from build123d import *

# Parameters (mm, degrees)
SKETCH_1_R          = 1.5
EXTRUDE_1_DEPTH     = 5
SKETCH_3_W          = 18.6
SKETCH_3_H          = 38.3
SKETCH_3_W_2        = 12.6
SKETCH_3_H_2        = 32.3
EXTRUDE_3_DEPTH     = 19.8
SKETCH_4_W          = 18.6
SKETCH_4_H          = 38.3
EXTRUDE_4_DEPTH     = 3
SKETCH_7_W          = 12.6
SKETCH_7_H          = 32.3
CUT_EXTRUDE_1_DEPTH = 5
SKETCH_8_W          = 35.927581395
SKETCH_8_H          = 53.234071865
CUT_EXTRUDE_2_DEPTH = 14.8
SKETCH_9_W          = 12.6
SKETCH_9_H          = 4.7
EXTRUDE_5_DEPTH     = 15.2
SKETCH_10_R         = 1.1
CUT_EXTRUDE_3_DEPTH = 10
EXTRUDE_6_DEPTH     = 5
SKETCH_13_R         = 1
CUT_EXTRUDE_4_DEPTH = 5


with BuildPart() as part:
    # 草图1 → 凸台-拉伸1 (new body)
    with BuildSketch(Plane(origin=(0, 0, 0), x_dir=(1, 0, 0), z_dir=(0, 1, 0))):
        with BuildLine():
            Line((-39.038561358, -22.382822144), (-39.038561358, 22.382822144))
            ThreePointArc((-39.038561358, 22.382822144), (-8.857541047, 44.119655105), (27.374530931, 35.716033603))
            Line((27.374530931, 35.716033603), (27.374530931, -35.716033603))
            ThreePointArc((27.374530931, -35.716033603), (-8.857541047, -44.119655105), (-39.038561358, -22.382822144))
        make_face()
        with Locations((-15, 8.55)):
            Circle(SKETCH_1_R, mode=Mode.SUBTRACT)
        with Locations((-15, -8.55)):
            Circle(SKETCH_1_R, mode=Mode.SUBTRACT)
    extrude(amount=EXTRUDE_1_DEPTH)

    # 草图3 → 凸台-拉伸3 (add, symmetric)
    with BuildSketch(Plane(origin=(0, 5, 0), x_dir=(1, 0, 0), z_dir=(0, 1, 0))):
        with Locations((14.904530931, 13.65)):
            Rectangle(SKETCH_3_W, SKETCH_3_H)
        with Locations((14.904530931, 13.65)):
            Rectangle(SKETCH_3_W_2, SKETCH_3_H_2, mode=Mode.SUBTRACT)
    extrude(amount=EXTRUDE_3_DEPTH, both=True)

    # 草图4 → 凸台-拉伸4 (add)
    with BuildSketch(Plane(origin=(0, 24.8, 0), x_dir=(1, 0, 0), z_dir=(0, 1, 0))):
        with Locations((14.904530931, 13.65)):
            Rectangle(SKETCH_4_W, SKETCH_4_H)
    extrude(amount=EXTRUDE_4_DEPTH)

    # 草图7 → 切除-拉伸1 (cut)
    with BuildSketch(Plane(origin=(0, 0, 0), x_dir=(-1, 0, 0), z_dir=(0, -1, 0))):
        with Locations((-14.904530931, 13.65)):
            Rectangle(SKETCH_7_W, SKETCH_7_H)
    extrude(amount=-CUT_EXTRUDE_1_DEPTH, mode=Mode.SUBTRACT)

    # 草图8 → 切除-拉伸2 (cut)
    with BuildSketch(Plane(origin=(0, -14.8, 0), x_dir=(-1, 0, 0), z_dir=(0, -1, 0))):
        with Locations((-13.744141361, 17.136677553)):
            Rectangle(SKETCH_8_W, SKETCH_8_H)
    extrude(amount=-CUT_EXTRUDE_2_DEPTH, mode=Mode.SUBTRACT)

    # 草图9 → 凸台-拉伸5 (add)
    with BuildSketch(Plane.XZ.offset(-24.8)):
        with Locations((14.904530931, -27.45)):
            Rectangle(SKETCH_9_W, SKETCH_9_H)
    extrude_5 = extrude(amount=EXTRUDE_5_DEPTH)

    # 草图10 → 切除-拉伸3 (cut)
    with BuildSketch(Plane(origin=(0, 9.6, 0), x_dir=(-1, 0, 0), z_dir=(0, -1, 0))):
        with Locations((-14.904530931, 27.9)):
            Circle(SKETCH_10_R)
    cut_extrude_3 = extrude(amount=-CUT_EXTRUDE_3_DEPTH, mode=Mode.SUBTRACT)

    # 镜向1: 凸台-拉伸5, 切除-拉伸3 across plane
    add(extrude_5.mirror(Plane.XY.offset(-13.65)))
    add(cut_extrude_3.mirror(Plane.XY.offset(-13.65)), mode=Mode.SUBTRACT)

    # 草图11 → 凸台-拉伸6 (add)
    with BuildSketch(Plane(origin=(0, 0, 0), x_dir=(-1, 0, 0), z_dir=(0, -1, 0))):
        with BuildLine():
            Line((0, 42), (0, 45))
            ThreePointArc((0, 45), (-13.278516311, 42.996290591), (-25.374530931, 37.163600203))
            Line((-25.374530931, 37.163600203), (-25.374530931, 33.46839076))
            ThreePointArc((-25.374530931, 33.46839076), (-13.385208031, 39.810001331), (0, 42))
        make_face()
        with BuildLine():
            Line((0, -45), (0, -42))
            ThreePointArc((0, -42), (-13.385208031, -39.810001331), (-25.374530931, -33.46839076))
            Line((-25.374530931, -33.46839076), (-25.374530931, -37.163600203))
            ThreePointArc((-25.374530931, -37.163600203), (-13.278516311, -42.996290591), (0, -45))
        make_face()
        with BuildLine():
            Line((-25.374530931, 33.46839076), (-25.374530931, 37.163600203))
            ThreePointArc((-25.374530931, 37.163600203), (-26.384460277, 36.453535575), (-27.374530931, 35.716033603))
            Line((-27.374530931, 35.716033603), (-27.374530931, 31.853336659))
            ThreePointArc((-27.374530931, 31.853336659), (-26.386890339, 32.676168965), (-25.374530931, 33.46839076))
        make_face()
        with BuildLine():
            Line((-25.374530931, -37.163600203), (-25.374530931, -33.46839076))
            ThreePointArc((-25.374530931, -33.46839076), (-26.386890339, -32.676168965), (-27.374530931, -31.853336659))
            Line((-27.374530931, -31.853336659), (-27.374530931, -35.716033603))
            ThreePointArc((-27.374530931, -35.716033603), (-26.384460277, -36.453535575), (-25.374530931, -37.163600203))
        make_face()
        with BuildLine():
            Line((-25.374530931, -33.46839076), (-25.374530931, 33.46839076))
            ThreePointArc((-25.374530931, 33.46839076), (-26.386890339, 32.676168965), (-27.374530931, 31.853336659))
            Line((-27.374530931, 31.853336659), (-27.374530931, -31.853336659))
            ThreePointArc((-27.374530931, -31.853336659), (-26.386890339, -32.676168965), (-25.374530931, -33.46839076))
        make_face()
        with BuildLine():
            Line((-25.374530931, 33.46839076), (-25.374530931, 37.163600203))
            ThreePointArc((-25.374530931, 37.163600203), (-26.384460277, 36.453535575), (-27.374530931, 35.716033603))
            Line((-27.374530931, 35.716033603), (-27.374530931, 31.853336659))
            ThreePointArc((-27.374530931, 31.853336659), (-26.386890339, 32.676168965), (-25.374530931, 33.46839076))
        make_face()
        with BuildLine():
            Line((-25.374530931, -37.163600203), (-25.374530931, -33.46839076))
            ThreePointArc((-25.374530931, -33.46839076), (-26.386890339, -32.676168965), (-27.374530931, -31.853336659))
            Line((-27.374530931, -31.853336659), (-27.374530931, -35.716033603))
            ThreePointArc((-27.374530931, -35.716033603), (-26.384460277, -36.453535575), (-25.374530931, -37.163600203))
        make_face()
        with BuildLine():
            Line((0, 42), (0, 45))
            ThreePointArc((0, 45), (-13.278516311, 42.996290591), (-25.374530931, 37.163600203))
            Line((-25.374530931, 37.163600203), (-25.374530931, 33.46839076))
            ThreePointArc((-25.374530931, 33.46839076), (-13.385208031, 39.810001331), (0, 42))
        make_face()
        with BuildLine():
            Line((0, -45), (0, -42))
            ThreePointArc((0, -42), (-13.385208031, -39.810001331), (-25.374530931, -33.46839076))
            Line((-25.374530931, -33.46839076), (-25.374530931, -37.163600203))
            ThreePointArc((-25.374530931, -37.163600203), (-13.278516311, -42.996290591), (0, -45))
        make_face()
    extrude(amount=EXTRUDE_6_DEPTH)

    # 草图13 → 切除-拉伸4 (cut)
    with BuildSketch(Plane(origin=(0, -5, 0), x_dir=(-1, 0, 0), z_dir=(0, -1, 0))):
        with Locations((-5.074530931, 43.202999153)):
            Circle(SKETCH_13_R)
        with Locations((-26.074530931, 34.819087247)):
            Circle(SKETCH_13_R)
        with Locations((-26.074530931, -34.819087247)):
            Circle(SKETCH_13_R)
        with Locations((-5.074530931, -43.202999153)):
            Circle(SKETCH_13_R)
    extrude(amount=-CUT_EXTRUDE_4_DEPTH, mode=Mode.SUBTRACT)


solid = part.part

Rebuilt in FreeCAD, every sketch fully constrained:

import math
import FreeCAD as App
import Part
import Sketcher
from FreeCAD import Vector
Q = App.Units.Quantity


def add_polygon(sketch, points):
    """Adds a closed chain of lines whose ends are joined by coincident constraints."""
    first, n = sketch.GeometryCount, len(points)
    for a, b in zip(points, points[1:] + points[:1]):
        sketch.addGeometry(Part.LineSegment(App.Vector(*a, 0), App.Vector(*b, 0)), False)
    for i in range(n):
        sketch.addConstraint(Sketcher.Constraint("Coincident", first + i, 2, first + (i + 1) % n, 1))

doc = App.newDocument("Part")
params = doc.addObject("Spreadsheet::Sheet", "Params")
for row, (alias, value) in enumerate([
    ("sketch1_diameter", "3 mm"),
    ("sketch1_radius", "45 mm"),
    ("pad1_length", "5 mm"),
    ("sketch2_width", "18.6 mm"),
    ("sketch2_width2", "12.6 mm"),
    ("sketch2_height", "38.3 mm"),
    ("sketch2_height2", "32.3 mm"),
    ("pad2_length", "39.6 mm"),
    ("sketch3_width", "18.6 mm"),
    ("sketch3_height", "38.3 mm"),
    ("pad3_length", "3 mm"),
    ("sketch4_width", "12.6 mm"),
    ("sketch4_height", "32.3 mm"),
    ("pocket1_length", "5 mm"),
    ("pocket2_length", "14.8 mm"),
    ("sketch6_width", "12.6 mm"),
    ("sketch6_height", "4.7 mm"),
    ("pad4_length", "15.2 mm"),
    ("sketch7_diameter", "2.2 mm"),
    ("pocket3_length", "10 mm"),
    ("sketch8_radius", "42 mm"),
    ("sketch8_radius2", "45 mm"),
    ("pad5_length", "5 mm"),
    ("sketch9_diameter", "2 mm"),
    ("pocket4_length", "5 mm"),
], start=1):
    params.set(f"A{row}", alias)
    params.set(f"B{row}", "=" + value)
    params.setAlias(f"B{row}", alias)

body = doc.addObject("PartDesign::Body", "Body")

# Sketch on XZ plane
sketch1 = body.newObject("Sketcher::SketchObject", "Sketch")
sketch1.AttachmentSupport = (doc.getObject("XZ_Plane"), [""])
sketch1.MapMode = "FlatFace"
sketch1.addGeometry([
    Part.LineSegment(Vector(-39, -22.4, 0), Vector(-39, 22.4, 0)),  # 0
    Part.ArcOfCircle(Part.Circle(Vector(0, 0, 0), Vector(0, 0, 1), 45), math.radians(53), math.radians(150)),  # 1
    Part.LineSegment(Vector(27.4, 35.7, 0), Vector(27.4, -35.7, 0)),  # 2
    Part.ArcOfCircle(Part.Circle(Vector(0, 0, 0), Vector(0, 0, 1), 45), math.radians(-150), math.radians(-53)),  # 3
    Part.Circle(Vector(-15, 8.6, 0), Vector(0, 0, 1), 1.5),  # 4
    Part.Circle(Vector(-15, -8.6, 0), Vector(0, 0, 1), 1.5),  # 5
], False)
sketch1.addConstraint([
    Sketcher.Constraint("Coincident", 0, 2, 1, 2),
    Sketcher.Constraint("Coincident", 1, 1, 2, 1),
    Sketcher.Constraint("Coincident", 2, 2, 3, 2),
    Sketcher.Constraint("Coincident", 3, 1, 0, 1),
    Sketcher.Constraint("Vertical", 0),
    Sketcher.Constraint("Vertical", 2),
    Sketcher.Constraint("Coincident", 1, 3, -1, 1),
    Sketcher.Constraint("Coincident", 3, 3, -1, 1),
    Sketcher.Constraint("Equal", 1, 3),
    Sketcher.Constraint("Equal", 4, 5),
    Sketcher.Constraint("Symmetric", 4, 3, 5, 3, -1),
    Sketcher.Constraint("Diameter", 4, Q("3 mm")),
    Sketcher.Constraint("Radius", 1, Q("45 mm")),
    Sketcher.Constraint("DistanceX", 4, 3, -1, 1, Q("15 mm")),
    Sketcher.Constraint("DistanceY", 5, 3, 4, 3, Q("17.1 mm")),
    Sketcher.Constraint("DistanceY", 0, 1, 0, 2, Q("44.765644 mm")),
    Sketcher.Constraint("DistanceY", 2, 2, 2, 1, Q("71.432067 mm")),
])
sketch1.setExpression("Constraints[11]", "Params.sketch1_diameter")
sketch1.setExpression("Constraints[12]", "Params.sketch1_radius")
pad1 = body.newObject("PartDesign::Pad", "Pad")
pad1.Profile = sketch1
pad1.setExpression("Length", "Params.pad1_length")
pad1.Reversed = True

# Sketch on XZ plane
sketch2 = body.newObject("Sketcher::SketchObject", "Sketch001")
sketch2.AttachmentSupport = (doc.getObject("XZ_Plane"), [""])
sketch2.MapMode = "FlatFace"
sketch2.AttachmentOffset = App.Placement(Vector(0, 0, -5), App.Rotation())
add_polygon(sketch2, [(6, -33), (6, 6), (24, 6), (24, -33)])  # lines 0-3
add_polygon(sketch2, [(21, 2), (9, 2), (9, -30), (21, -30)])  # lines 4-7
sketch2.addConstraint([
    Sketcher.Constraint("Vertical", 0),
    Sketcher.Constraint("Horizontal", 1),
    Sketcher.Constraint("Vertical", 2),
    Sketcher.Constraint("Horizontal", 3),
    Sketcher.Constraint("Horizontal", 4),
    Sketcher.Constraint("Vertical", 5),
    Sketcher.Constraint("Horizontal", 6),
    Sketcher.Constraint("Vertical", 7),
    Sketcher.Constraint("DistanceX", 1, 1, 1, 2, Q("18.6 mm")),
    Sketcher.Constraint("DistanceX", 4, 2, 4, 1, Q("12.6 mm")),
    Sketcher.Constraint("DistanceY", 0, 1, 0, 2, Q("38.3 mm")),
    Sketcher.Constraint("DistanceY", 5, 2, 5, 1, Q("32.3 mm")),
    Sketcher.Constraint("DistanceX", 0, 2, 4, 2, Q("3 mm")),
    Sketcher.Constraint("DistanceY", 4, 2, 0, 2, Q("3 mm")),
    Sketcher.Constraint("DistanceY", -1, 1, 0, 2, Q("5.5 mm")),
    Sketcher.Constraint("DistanceX", -1, 1, 0, 2, Q("5.604531 mm")),
])
sketch2.setExpression("Constraints[16]", "Params.sketch2_width")
sketch2.setExpression("Constraints[17]", "Params.sketch2_width2")
sketch2.setExpression("Constraints[18]", "Params.sketch2_height")
sketch2.setExpression("Constraints[19]", "Params.sketch2_height2")
pad2 = body.newObject("PartDesign::Pad", "Pad001")
pad2.Profile = sketch2
pad2.setExpression("Length", "Params.pad2_length")
pad2.Midplane = True

# Sketch on XZ plane
sketch3 = body.newObject("Sketcher::SketchObject", "Sketch002")
sketch3.AttachmentSupport = (doc.getObject("XZ_Plane"), [""])
sketch3.MapMode = "FlatFace"
sketch3.AttachmentOffset = App.Placement(Vector(0, 0, -24.8), App.Rotation())
add_polygon(sketch3, [(6, -33), (6, 6), (24, 6), (24, -33)])  # lines 0-3
sketch3.addConstraint([
    Sketcher.Constraint("Vertical", 0),
    Sketcher.Constraint("Horizontal", 1),
    Sketcher.Constraint("Vertical", 2),
    Sketcher.Constraint("Horizontal", 3),
    Sketcher.Constraint("DistanceX", 1, 1, 1, 2, Q("18.6 mm")),
    Sketcher.Constraint("DistanceY", 0, 1, 0, 2, Q("38.3 mm")),
    Sketcher.Constraint("DistanceY", -1, 1, 0, 2, Q("5.5 mm")),
    Sketcher.Constraint("DistanceX", -1, 1, 0, 2, Q("5.604531 mm")),
])
sketch3.setExpression("Constraints[8]", "Params.sketch3_width")
sketch3.setExpression("Constraints[9]", "Params.sketch3_height")
pad3 = body.newObject("PartDesign::Pad", "Pad002")
pad3.Profile = sketch3
pad3.setExpression("Length", "Params.pad3_length")
pad3.Reversed = True

# Sketch on XZ plane
sketch4 = body.newObject("Sketcher::SketchObject", "Sketch003")
sketch4.AttachmentSupport = (doc.getObject("XZ_Plane"), [""])
sketch4.MapMode = "FlatFace"
add_polygon(sketch4, [(21, -30), (21, 2), (9, 2), (9, -30)])  # lines 0-3
sketch4.addConstraint([
    Sketcher.Constraint("Vertical", 0),
    Sketcher.Constraint("Horizontal", 1),
    Sketcher.Constraint("Vertical", 2),
    Sketcher.Constraint("Horizontal", 3),
    Sketcher.Constraint("DistanceX", 1, 2, 1, 1, Q("12.6 mm")),
    Sketcher.Constraint("DistanceY", 0, 1, 0, 2, Q("32.3 mm")),
    Sketcher.Constraint("DistanceY", -1, 1, 0, 2, Q("2.5 mm")),
    Sketcher.Constraint("DistanceX", -1, 1, 0, 2, Q("21.204531 mm")),
])
sketch4.setExpression("Constraints[8]", "Params.sketch4_width")
sketch4.setExpression("Constraints[9]", "Params.sketch4_height")
pocket1 = body.newObject("PartDesign::Pocket", "Pocket")
pocket1.Profile = sketch4
pocket1.setExpression("Length", "Params.pocket1_length")

# Sketch on XZ plane
sketch5 = body.newObject("Sketcher::SketchObject", "Sketch004")
sketch5.AttachmentSupport = (doc.getObject("XZ_Plane"), [""])
sketch5.MapMode = "FlatFace"
sketch5.AttachmentOffset = App.Placement(Vector(0, 0, 14.8), App.Rotation())
add_polygon(sketch5, [(32, -44), (32, 9), (-4, 9), (-4, -44)])  # lines 0-3
sketch5.addConstraint([
    Sketcher.Constraint("Vertical", 0),
    Sketcher.Constraint("Horizontal", 1),
    Sketcher.Constraint("Vertical", 2),
    Sketcher.Constraint("Horizontal", 3),
    Sketcher.Constraint("DistanceX", 1, 2, 1, 1, Q("35.927581 mm")),
    Sketcher.Constraint("DistanceY", 0, 1, 0, 2, Q("53.234072 mm")),
    Sketcher.Constraint("DistanceY", -1, 1, 0, 2, Q("9.480358 mm")),
    Sketcher.Constraint("DistanceX", 1, 2, -1, 1, Q("4.219649 mm")),
])
pocket2 = body.newObject("PartDesign::Pocket", "Pocket001")
pocket2.Profile = sketch5
pocket2.setExpression("Length", "Params.pocket2_length")

# Sketch on XZ plane
sketch6 = body.newObject("Sketcher::SketchObject", "Sketch005")
sketch6.AttachmentSupport = (doc.getObject("XZ_Plane"), [""])
sketch6.MapMode = "FlatFace"
sketch6.AttachmentOffset = App.Placement(Vector(0, 0, -24.8), App.Rotation())
add_polygon(sketch6, [(8.6, -25.1), (8.6, -29.8), (21.2, -29.8), (21.2, -25.1)])  # lines 0-3
sketch6.addConstraint([
    Sketcher.Constraint("Vertical", 0),
    Sketcher.Constraint("Horizontal", 1),
    Sketcher.Constraint("Vertical", 2),
    Sketcher.Constraint("Horizontal", 3),
    Sketcher.Constraint("DistanceX", 1, 1, 1, 2, Q("12.6 mm")),
    Sketcher.Constraint("DistanceY", 0, 2, 0, 1, Q("4.7 mm")),
    Sketcher.Constraint("DistanceY", 0, 2, -1, 1, Q("29.8 mm")),
    Sketcher.Constraint("DistanceX", -1, 1, 0, 2, Q("8.604531 mm")),
])
sketch6.setExpression("Constraints[8]", "Params.sketch6_width")
sketch6.setExpression("Constraints[9]", "Params.sketch6_height")
pad4 = body.newObject("PartDesign::Pad", "Pad003")
pad4.Profile = sketch6
pad4.setExpression("Length", "Params.pad4_length")

# Sketch on XZ plane
sketch7 = body.newObject("Sketcher::SketchObject", "Sketch006")
sketch7.AttachmentSupport = (doc.getObject("XZ_Plane"), [""])
sketch7.MapMode = "FlatFace"
sketch7.AttachmentOffset = App.Placement(Vector(0, 0, -9.6), App.Rotation())
sketch7.addGeometry(Part.Circle(Vector(14.9, -27.9, 0), Vector(0, 0, 1), 1.1), False)
sketch7.addConstraint([
    Sketcher.Constraint("Diameter", 0, Q("2.2 mm")),
    Sketcher.Constraint("DistanceY", 0, 3, -1, 1, Q("27.9 mm")),
    Sketcher.Constraint("DistanceX", -1, 1, 0, 3, Q("14.904531 mm")),
])
sketch7.setExpression("Constraints[0]", "Params.sketch7_diameter")
pocket3 = body.newObject("PartDesign::Pocket", "Pocket002")
pocket3.Profile = sketch7
pocket3.setExpression("Length", "Params.pocket3_length")
doc.recompute()

datumplane = body.newObject("PartDesign::Plane", "DatumPlane")
datumplane.AttachmentSupport = (doc.getObject("XY_Plane"), [""])
datumplane.MapMode = "FlatFace"
datumplane.AttachmentOffset = App.Placement(Vector(0, 0, -13.65), App.Rotation())
mirrored = body.newObject("PartDesign::Mirrored", "Mirrored")
mirrored.Originals = [pad4, pocket3]
mirrored.MirrorPlane = (datumplane, [""])
body.Tip = mirrored

# Sketch on XZ plane
sketch8 = body.newObject("Sketcher::SketchObject", "Sketch007")
sketch8.AttachmentSupport = (doc.getObject("XZ_Plane"), [""])
sketch8.MapMode = "FlatFace"
sketch8.addGeometry([
    Part.LineSegment(Vector(0, 45, 0), Vector(0, 42, 0)),  # 0
    Part.ArcOfCircle(Part.Circle(Vector(0, 0, 0), Vector(0, 0, 1), 42), math.radians(53), math.radians(90)),  # 1
    Part.LineSegment(Vector(25.4, 33.5, 0), Vector(25.4, -33.5, 0)),  # 2
    Part.ArcOfCircle(Part.Circle(Vector(0, 0, 0), Vector(0, 0, 1), 42), math.radians(-90), math.radians(-53)),  # 3
    Part.LineSegment(Vector(0, -42, 0), Vector(0, -45, 0)),  # 4
    Part.ArcOfCircle(Part.Circle(Vector(0, 0, 0), Vector(0, 0, 1), 45), math.radians(-90), math.radians(-56)),  # 5
    Part.ArcOfCircle(Part.Circle(Vector(0, 0, 0), Vector(0, 0, 1), 45), math.radians(-55.68), math.radians(-52.53)),  # 6
    Part.LineSegment(Vector(27.4, -35.7, 0), Vector(27.4, 35.7, 0)),  # 7
    Part.ArcOfCircle(Part.Circle(Vector(0, 0, 0), Vector(0, 0, 1), 45), math.radians(52.53), math.radians(55.68)),  # 8
    Part.ArcOfCircle(Part.Circle(Vector(0, 0, 0), Vector(0, 0, 1), 45), math.radians(56), math.radians(90)),  # 9
], False)
sketch8.addConstraint([
    Sketcher.Constraint("Coincident", 0, 2, 1, 2),
    Sketcher.Constraint("Coincident", 1, 1, 2, 1),
    Sketcher.Constraint("Coincident", 2, 2, 3, 2),
    Sketcher.Constraint("Coincident", 3, 1, 4, 1),
    Sketcher.Constraint("Coincident", 4, 2, 5, 1),
    Sketcher.Constraint("Tangent", 5, 2, 6, 1),
    Sketcher.Constraint("Coincident", 6, 2, 7, 1),
    Sketcher.Constraint("Coincident", 7, 2, 8, 1),
    Sketcher.Constraint("Tangent", 8, 2, 9, 1),
    Sketcher.Constraint("Coincident", 9, 2, 0, 1),
    Sketcher.Constraint("Vertical", 0),
    Sketcher.Constraint("Vertical", 2),
    Sketcher.Constraint("Vertical", 4),
    Sketcher.Constraint("Vertical", 7),
    Sketcher.Constraint("Coincident", 1, 3, -1, 1),
    Sketcher.Constraint("Coincident", 3, 3, -1, 1),
    Sketcher.Constraint("Coincident", 5, 3, -1, 1),
    Sketcher.Constraint("Coincident", 8, 3, -1, 1),
    Sketcher.Constraint("Equal", 1, 3),
    Sketcher.Constraint("Equal", 5, 6),
    Sketcher.Constraint("Equal", 6, 8),
    Sketcher.Constraint("Equal", 8, 9),
    Sketcher.Constraint("PointOnObject", 0, 2, -2),
    Sketcher.Constraint("PointOnObject", 3, 1, -2),
    Sketcher.Constraint("Vertical", 2, 2, 5, 2),
    Sketcher.Constraint("Vertical", 5, 2, 8, 2),
    Sketcher.Constraint("Radius", 1, Q("42 mm")),
    Sketcher.Constraint("Radius", 5, Q("45 mm")),
    Sketcher.Constraint("DistanceX", 5, 2, 6, 2, Q("2 mm")),
    Sketcher.Constraint("DistanceY", 2, 2, 2, 1, Q("66.936782 mm")),
])
sketch8.setExpression("Constraints[26]", "Params.sketch8_radius")
sketch8.setExpression("Constraints[27]", "Params.sketch8_radius2")
pad5 = body.newObject("PartDesign::Pad", "Pad004")
pad5.Profile = sketch8
pad5.setExpression("Length", "Params.pad5_length")

# Sketch on XZ plane
sketch9 = body.newObject("Sketcher::SketchObject", "Sketch008")
sketch9.AttachmentSupport = (doc.getObject("XZ_Plane"), [""])
sketch9.MapMode = "FlatFace"
sketch9.AttachmentOffset = App.Placement(Vector(0, 0, 5), App.Rotation())
sketch9.addGeometry([
    Part.Circle(Vector(5.1, -43.2, 0), Vector(0, 0, 1), 1),
    Part.Circle(Vector(26.1, -34.8, 0), Vector(0, 0, 1), 1),
    Part.Circle(Vector(26.1, 34.8, 0), Vector(0, 0, 1), 1),
    Part.Circle(Vector(5.1, 43.2, 0), Vector(0, 0, 1), 1),
], False)
sketch9.addConstraint([
    Sketcher.Constraint("Equal", 0, 1),
    Sketcher.Constraint("Equal", 1, 2),
    Sketcher.Constraint("Equal", 2, 3),
    Sketcher.Constraint("Symmetric", 1, 3, 2, 3, -1),
    Sketcher.Constraint("Symmetric", 0, 3, 3, 3, -1),
    Sketcher.Constraint("Diameter", 0, Q("2 mm")),
    Sketcher.Constraint("DistanceX", 0, 3, 1, 3, Q("21 mm")),
    Sketcher.Constraint("DistanceY", 0, 3, -1, 1, Q("43.202999 mm")),
    Sketcher.Constraint("DistanceX", -1, 1, 0, 3, Q("5.074531 mm")),
    Sketcher.Constraint("DistanceY", 0, 3, 1, 3, Q("8.383912 mm")),
])
sketch9.setExpression("Constraints[5]", "Params.sketch9_diameter")
pocket4 = body.newObject("PartDesign::Pocket", "Pocket003")
pocket4.Profile = sketch9
pocket4.setExpression("Length", "Params.pocket4_length")

doc.recompute()
